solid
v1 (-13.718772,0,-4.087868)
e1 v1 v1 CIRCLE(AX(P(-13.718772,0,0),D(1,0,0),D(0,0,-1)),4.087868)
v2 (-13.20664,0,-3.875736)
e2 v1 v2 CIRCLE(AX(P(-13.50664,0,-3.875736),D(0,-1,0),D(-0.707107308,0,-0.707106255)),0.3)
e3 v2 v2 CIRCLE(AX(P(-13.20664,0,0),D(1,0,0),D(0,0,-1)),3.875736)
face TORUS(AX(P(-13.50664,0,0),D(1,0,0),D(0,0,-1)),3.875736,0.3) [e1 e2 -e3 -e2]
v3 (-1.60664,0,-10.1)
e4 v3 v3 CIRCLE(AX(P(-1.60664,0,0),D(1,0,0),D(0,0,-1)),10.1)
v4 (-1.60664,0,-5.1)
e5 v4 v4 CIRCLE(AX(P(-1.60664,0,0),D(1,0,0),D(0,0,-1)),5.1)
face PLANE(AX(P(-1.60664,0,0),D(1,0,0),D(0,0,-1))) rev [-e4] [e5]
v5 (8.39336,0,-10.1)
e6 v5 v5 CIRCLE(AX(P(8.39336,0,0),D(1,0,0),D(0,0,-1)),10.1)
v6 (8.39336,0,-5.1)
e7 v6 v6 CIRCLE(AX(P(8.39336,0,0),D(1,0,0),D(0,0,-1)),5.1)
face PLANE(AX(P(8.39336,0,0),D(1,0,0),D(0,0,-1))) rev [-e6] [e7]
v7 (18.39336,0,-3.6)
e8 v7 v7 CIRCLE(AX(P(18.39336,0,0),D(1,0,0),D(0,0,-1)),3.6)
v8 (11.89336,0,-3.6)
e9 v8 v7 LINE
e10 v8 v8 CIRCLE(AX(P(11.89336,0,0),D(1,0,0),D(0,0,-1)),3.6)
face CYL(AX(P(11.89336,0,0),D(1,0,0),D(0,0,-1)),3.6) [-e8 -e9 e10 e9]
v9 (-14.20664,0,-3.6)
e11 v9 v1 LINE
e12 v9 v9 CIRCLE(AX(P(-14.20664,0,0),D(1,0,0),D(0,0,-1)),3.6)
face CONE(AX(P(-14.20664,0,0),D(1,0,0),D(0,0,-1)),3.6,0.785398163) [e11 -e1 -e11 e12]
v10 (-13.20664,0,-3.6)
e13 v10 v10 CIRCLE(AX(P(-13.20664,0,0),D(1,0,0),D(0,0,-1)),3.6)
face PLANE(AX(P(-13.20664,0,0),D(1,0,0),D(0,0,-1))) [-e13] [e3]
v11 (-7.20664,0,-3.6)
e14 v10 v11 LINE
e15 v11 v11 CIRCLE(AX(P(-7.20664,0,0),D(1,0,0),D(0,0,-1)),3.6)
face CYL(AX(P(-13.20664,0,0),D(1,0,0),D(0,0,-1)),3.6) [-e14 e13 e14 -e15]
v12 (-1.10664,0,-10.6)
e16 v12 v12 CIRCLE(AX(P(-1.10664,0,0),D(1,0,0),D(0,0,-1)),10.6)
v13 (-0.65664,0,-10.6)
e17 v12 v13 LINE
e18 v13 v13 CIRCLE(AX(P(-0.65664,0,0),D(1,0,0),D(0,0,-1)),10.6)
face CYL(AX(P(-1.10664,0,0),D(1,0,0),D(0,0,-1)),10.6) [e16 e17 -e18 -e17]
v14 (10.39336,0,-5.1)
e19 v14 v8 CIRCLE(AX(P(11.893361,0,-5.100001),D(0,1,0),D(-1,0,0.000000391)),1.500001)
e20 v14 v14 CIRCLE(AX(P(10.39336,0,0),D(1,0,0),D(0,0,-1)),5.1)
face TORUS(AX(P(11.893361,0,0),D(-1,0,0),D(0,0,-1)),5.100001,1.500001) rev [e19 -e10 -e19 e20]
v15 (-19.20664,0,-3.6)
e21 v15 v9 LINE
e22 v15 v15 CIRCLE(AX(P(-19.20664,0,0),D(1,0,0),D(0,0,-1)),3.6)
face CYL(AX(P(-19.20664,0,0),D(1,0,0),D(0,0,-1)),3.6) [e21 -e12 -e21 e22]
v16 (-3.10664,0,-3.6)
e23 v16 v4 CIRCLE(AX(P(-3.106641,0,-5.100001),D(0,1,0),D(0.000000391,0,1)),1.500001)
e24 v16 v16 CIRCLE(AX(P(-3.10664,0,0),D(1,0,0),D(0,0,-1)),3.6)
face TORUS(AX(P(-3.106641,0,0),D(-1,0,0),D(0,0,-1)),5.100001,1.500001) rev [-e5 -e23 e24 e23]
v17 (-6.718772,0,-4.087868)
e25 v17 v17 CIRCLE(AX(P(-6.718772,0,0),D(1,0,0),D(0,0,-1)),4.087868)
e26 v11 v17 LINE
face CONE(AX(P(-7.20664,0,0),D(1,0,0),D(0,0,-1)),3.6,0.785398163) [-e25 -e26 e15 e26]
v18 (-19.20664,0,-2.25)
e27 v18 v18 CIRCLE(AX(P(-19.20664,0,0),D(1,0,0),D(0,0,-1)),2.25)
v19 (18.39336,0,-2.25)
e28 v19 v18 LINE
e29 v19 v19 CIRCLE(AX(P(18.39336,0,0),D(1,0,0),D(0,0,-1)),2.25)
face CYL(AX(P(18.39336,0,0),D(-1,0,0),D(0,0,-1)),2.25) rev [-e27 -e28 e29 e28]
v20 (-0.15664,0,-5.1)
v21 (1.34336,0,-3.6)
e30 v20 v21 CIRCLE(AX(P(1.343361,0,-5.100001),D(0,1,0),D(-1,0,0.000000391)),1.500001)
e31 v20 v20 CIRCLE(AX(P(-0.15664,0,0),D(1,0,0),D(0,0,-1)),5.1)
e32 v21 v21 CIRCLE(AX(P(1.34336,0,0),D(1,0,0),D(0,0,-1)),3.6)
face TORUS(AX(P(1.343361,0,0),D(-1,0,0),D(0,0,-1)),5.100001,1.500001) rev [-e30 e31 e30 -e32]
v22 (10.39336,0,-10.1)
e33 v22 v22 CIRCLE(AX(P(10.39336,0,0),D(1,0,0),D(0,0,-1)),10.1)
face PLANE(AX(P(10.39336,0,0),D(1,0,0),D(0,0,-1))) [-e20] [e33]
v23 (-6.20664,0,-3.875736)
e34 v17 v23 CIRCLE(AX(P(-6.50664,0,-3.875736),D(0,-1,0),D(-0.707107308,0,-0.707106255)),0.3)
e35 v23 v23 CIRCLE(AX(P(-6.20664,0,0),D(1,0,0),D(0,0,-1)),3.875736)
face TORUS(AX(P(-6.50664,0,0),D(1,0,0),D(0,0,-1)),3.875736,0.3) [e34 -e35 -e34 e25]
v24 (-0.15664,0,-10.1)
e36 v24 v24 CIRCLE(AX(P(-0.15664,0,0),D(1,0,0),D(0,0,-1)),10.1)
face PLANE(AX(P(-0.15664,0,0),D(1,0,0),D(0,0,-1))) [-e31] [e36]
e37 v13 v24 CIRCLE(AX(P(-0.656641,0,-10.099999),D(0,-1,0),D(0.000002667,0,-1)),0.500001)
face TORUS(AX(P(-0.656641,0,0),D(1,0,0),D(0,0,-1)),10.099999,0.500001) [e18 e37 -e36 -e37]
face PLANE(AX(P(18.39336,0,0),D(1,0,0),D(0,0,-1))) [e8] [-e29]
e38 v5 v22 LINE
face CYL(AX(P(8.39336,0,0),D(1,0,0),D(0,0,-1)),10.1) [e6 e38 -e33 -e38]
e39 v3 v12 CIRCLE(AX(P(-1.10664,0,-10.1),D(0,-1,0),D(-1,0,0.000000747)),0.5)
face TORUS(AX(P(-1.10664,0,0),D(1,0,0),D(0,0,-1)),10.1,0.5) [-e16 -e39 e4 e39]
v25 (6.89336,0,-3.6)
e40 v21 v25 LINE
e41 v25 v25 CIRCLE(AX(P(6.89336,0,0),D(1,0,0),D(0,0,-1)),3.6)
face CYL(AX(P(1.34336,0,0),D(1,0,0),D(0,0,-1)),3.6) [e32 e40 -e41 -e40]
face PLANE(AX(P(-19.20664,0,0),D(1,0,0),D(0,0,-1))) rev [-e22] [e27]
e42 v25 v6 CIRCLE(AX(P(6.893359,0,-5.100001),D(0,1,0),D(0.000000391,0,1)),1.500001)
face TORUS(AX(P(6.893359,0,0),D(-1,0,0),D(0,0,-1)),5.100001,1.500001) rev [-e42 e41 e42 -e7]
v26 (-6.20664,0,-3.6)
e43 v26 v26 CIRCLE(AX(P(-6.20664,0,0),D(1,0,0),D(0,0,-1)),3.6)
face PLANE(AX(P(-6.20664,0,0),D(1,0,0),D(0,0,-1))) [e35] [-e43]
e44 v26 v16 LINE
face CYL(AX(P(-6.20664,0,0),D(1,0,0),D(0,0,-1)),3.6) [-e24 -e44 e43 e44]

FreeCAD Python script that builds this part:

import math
import FreeCAD as App
import Part
import Sketcher

V = App.Vector
Q = App.Units.Quantity

doc = App.newDocument("Part")
params = doc.addObject("Spreadsheet::Sheet", "Params")
for row, (alias, value) in enumerate([
    ("sketch1_radius", "0.3 mm"),
    ("sketch1_radius2", "1.500001 mm"),
    ("sketch1_radius3", "0.5 mm"),
    ("sketch1_width", "5 mm"),
    ("sketch1_width2", "6 mm"),
    ("revolution_angle", "360 deg"),
], start=1):
    params.set(f"A{row}", alias)
    params.set(f"B{row}", "=" + value)
    params.setAlias(f"B{row}", alias)

body = doc.addObject("PartDesign::Body", "Body")

sketch1 = doc.addObject("Sketcher::SketchObject", "Sketch")
body.addObject(sketch1)
sketch1.AttachmentSupport = (doc.XZ_Plane, [""])
sketch1.MapMode = "FlatFace"
sketch1.addGeometry(Part.LineSegment(V(18.39336, -2.25, 0), V(-19.20664, -2.25, 0)), False)
sketch1.addGeometry(Part.LineSegment(V(-19.20664, -2.25, 0), V(-19.20664, -3.6, 0)), False)
sketch1.addGeometry(Part.LineSegment(V(-19.20664, -3.6, 0), V(-14.20664, -3.6, 0)), False)
sketch1.addGeometry(Part.LineSegment(V(-14.20664, -3.6, 0), V(-13.718772, -4.087868, 0)), False)
sketch1.addGeometry(Part.ArcOfCircle(Part.Circle(V(-13.50664, -3.875736, 0), V(0, 0, 1), 0.3), math.radians(-135.000043), math.radians(0.000039)), False)
sketch1.addGeometry(Part.LineSegment(V(-13.20664, -3.875736, 0), V(-13.20664, -3.6, 0)), False)
sketch1.addGeometry(Part.LineSegment(V(-13.20664, -3.6, 0), V(-7.20664, -3.6, 0)), False)
sketch1.addGeometry(Part.LineSegment(V(-7.20664, -3.6, 0), V(-6.718772, -4.087868, 0)), False)
sketch1.addGeometry(Part.ArcOfCircle(Part.Circle(V(-6.50664, -3.875736, 0), V(0, 0, 1), 0.3), math.radians(-135.000043), math.radians(0.000039)), False)
sketch1.addGeometry(Part.LineSegment(V(-6.20664, -3.875736, 0), V(-6.20664, -3.6, 0)), False)
sketch1.addGeometry(Part.LineSegment(V(-6.20664, -3.6, 0), V(-3.10664, -3.6, 0)), False)
sketch1.addGeometry(Part.ArcOfCircle(Part.Circle(V(-3.106641, -5.100001, 0), V(0, 0, 1), 1.500001), math.radians(0.000022), math.radians(89.999978)), False)
sketch1.addGeometry(Part.LineSegment(V(-1.60664, -5.1, 0), V(-1.60664, -10.1, 0)), False)
sketch1.addGeometry(Part.ArcOfCircle(Part.Circle(V(-1.10664, -10.1, 0), V(0, 0, 1), 0.5), math.radians(179.999957), math.radians(270.000043)), False)
sketch1.addGeometry(Part.LineSegment(V(-1.10664, -10.6, 0), V(-0.65664, -10.6, 0)), False)
sketch1.addGeometry(Part.ArcOfCircle(Part.Circle(V(-0.656641, -10.099999, 0), V(0, 0, 1), 0.500001), math.radians(-89.999847), math.radians(-0.000153)), False)
sketch1.addGeometry(Part.LineSegment(V(-0.15664, -10.1, 0), V(-0.15664, -5.1, 0)), False)
sketch1.addGeometry(Part.ArcOfCircle(Part.Circle(V(1.343361, -5.100001, 0), V(0, 0, 1), 1.500001), math.radians(90.000022), math.radians(179.999978)), False)
sketch1.addGeometry(Part.LineSegment(V(1.34336, -3.6, 0), V(6.89336, -3.6, 0)), False)
sketch1.addGeometry(Part.ArcOfCircle(Part.Circle(V(6.893359, -5.100001, 0), V(0, 0, 1), 1.500001), math.radians(0.000022), math.radians(89.999978)), False)
sketch1.addGeometry(Part.LineSegment(V(8.39336, -5.1, 0), V(8.39336, -10.1, 0)), False)
sketch1.addGeometry(Part.LineSegment(V(8.39336, -10.1, 0), V(10.39336, -10.1, 0)), False)
sketch1.addGeometry(Part.LineSegment(V(10.39336, -10.1, 0), V(10.39336, -5.1, 0)), False)
sketch1.addGeometry(Part.ArcOfCircle(Part.Circle(V(11.893361, -5.100001, 0), V(0, 0, 1), 1.500001), math.radians(90.000022), math.radians(179.999978)), False)
sketch1.addGeometry(Part.LineSegment(V(11.89336, -3.6, 0), V(18.39336, -3.6, 0)), False)
sketch1.addGeometry(Part.LineSegment(V(18.39336, -3.6, 0), V(18.39336, -2.25, 0)), False)
sketch1.addConstraint(Sketcher.Constraint("Coincident", 0, 2, 1, 1))
sketch1.addConstraint(Sketcher.Constraint("Coincident", 1, 2, 2, 1))
sketch1.addConstraint(Sketcher.Constraint("Coincident", 2, 2, 3, 1))
sketch1.addConstraint(Sketcher.Constraint("Tangent", 3, 2, 4, 1))
sketch1.addConstraint(Sketcher.Constraint("Tangent", 4, 2, 5, 1))
sketch1.addConstraint(Sketcher.Constraint("Coincident", 5, 2, 6, 1))
sketch1.addConstraint(Sketcher.Constraint("Coincident", 6, 2, 7, 1))
sketch1.addConstraint(Sketcher.Constraint("Tangent", 7, 2, 8, 1))
sketch1.addConstraint(Sketcher.Constraint("Tangent", 8, 2, 9, 1))
sketch1.addConstraint(Sketcher.Constraint("Coincident", 9, 2, 10, 1))
sketch1.addConstraint(Sketcher.Constraint("Tangent", 10, 2, 11, 2))
sketch1.addConstraint(Sketcher.Constraint("Tangent", 11, 1, 12, 1))
sketch1.addConstraint(Sketcher.Constraint("Tangent", 12, 2, 13, 1))
sketch1.addConstraint(Sketcher.Constraint("Tangent", 13, 2, 14, 1))
sketch1.addConstraint(Sketcher.Constraint("Coincident", 14, 2, 15, 1))
sketch1.addConstraint(Sketcher.Constraint("Coincident", 15, 2, 16, 1))
sketch1.addConstraint(Sketcher.Constraint("Tangent", 16, 2, 17, 2))
sketch1.addConstraint(Sketcher.Constraint("Tangent", 17, 1, 18, 1))
sketch1.addConstraint(Sketcher.Constraint("Tangent", 18, 2, 19, 2))
sketch1.addConstraint(Sketcher.Constraint("Tangent", 19, 1, 20, 1))
sketch1.addConstraint(Sketcher.Constraint("Coincident", 20, 2, 21, 1))
sketch1.addConstraint(Sketcher.Constraint("Coincident", 21, 2, 22, 1))
sketch1.addConstraint(Sketcher.Constraint("Tangent", 22, 2, 23, 2))
sketch1.addConstraint(Sketcher.Constraint("Tangent", 23, 1, 24, 1))
sketch1.addConstraint(Sketcher.Constraint("Coincident", 24, 2, 25, 1))
sketch1.addConstraint(Sketcher.Constraint("Coincident", 25, 2, 0, 1))
sketch1.addConstraint(Sketcher.Constraint("Horizontal", 0))
sketch1.addConstraint(Sketcher.Constraint("Vertical", 1))
sketch1.addConstraint(Sketcher.Constraint("Horizontal", 2))
sketch1.addConstraint(Sketcher.Constraint("Vertical", 5))
sketch1.addConstraint(Sketcher.Constraint("Horizontal", 6))
sketch1.addConstraint(Sketcher.Constraint("Vertical", 9))
sketch1.addConstraint(Sketcher.Constraint("Horizontal", 10))
sketch1.addConstraint(Sketcher.Constraint("Vertical", 12))
sketch1.addConstraint(Sketcher.Constraint("Horizontal", 14))
sketch1.addConstraint(Sketcher.Constraint("Vertical", 16))
sketch1.addConstraint(Sketcher.Constraint("Horizontal", 18))
sketch1.addConstraint(Sketcher.Constraint("Vertical", 20))
sketch1.addConstraint(Sketcher.Constraint("Horizontal", 21))
sketch1.addConstraint(Sketcher.Constraint("Vertical", 22))
sketch1.addConstraint(Sketcher.Constraint("Horizontal", 24))
sketch1.addConstraint(Sketcher.Constraint("Vertical", 25))
sketch1.addConstraint(Sketcher.Constraint("Equal", 4, 8))
sketch1.addConstraint(Sketcher.Constraint("Equal", 13, 15))
sketch1.addConstraint(Sketcher.Constraint("Equal", 11, 17))
sketch1.addConstraint(Sketcher.Constraint("Equal", 17, 19))
sketch1.addConstraint(Sketcher.Constraint("Equal", 19, 23))
sketch1.addConstraint(Sketcher.Constraint("Parallel", 3, 7))
sketch1.addConstraint(Sketcher.Constraint("Horizontal", 4, 3, 8, 3))
sketch1.addConstraint(Sketcher.Constraint("Horizontal", 11, 3, 17, 3))
sketch1.addConstraint(Sketcher.Constraint("Horizontal", 19, 3, 23, 3))
sketch1.addConstraint(Sketcher.Constraint("Horizontal", 2, 2, 5, 2))
sketch1.addConstraint(Sketcher.Constraint("Horizontal", 6, 2, 9, 2))
sketch1.addConstraint(Sketcher.Constraint("Horizontal", 12, 2, 15, 2))
sketch1.addConstraint(Sketcher.Constraint("Horizontal", 15, 2, 20, 2))
sketch1.addConstraint(Sketcher.Constraint("Vertical", 15, 3, 14, 2))
sketch1.addConstraint(Sketcher.Constraint("Equal", 2, 12))
sketch1.addConstraint(Sketcher.Constraint("Radius", 4, Q("0.3 mm")))
sketch1.addConstraint(Sketcher.Constraint("Radius", 11, Q("1.500001 mm")))
sketch1.addConstraint(Sketcher.Constraint("Radius", 13, Q("0.5 mm")))
sketch1.addConstraint(Sketcher.Constraint("DistanceX", 2, 1, 2, 2, Q("5 mm")))
sketch1.addConstraint(Sketcher.Constraint("DistanceX", 6, 1, 6, 2, Q("6 mm")))
sketch1.addConstraint(Sketcher.Constraint("DistanceX", 21, 1, 21, 2, Q("2 mm")))
sketch1.addConstraint(Sketcher.Constraint("Angle", 3, Q("-45 deg")))
sketch1.addConstraint(Sketcher.Constraint("DistanceX", 0, 2, 0, 1, Q("37.6 mm")))
sketch1.addConstraint(Sketcher.Constraint("DistanceX", 10, 1, 10, 2, Q("3.1 mm")))
sketch1.addConstraint(Sketcher.Constraint("DistanceX", 24, 1, 24, 2, Q("6.5 mm")))
sketch1.addConstraint(Sketcher.Constraint("DistanceX", 4, 3, 8, 3, Q("7 mm")))
sketch1.addConstraint(Sketcher.Constraint("DistanceX", 14, 1, 14, 2, Q("0.45 mm")))
sketch1.addConstraint(Sketcher.Constraint("DistanceY", 1, 2, 1, 1, Q("1.35 mm")))
sketch1.addConstraint(Sketcher.Constraint("DistanceY", 11, 3, -1, 1, Q("5.100001 mm")))
sketch1.addConstraint(Sketcher.Constraint("DistanceX", 4, 3, -1, 1, Q("13.50664 mm")))
sketch1.setExpression("Constraints[57]", "Params.sketch1_radius")
sketch1.setExpression("Constraints[58]", "Params.sketch1_radius2")
sketch1.setExpression("Constraints[59]", "Params.sketch1_radius3")
sketch1.setExpression("Constraints[60]", "Params.sketch1_width")
sketch1.setExpression("Constraints[61]", "Params.sketch1_width2")
revolution = doc.addObject("PartDesign::Revolution", "Revolution")
body.addObject(revolution)
revolution.Profile = sketch1
revolution.ReferenceAxis = (sketch1, ["H_Axis"])
revolution.setExpression("Angle", "Params.revolution_angle")

doc.recompute()
